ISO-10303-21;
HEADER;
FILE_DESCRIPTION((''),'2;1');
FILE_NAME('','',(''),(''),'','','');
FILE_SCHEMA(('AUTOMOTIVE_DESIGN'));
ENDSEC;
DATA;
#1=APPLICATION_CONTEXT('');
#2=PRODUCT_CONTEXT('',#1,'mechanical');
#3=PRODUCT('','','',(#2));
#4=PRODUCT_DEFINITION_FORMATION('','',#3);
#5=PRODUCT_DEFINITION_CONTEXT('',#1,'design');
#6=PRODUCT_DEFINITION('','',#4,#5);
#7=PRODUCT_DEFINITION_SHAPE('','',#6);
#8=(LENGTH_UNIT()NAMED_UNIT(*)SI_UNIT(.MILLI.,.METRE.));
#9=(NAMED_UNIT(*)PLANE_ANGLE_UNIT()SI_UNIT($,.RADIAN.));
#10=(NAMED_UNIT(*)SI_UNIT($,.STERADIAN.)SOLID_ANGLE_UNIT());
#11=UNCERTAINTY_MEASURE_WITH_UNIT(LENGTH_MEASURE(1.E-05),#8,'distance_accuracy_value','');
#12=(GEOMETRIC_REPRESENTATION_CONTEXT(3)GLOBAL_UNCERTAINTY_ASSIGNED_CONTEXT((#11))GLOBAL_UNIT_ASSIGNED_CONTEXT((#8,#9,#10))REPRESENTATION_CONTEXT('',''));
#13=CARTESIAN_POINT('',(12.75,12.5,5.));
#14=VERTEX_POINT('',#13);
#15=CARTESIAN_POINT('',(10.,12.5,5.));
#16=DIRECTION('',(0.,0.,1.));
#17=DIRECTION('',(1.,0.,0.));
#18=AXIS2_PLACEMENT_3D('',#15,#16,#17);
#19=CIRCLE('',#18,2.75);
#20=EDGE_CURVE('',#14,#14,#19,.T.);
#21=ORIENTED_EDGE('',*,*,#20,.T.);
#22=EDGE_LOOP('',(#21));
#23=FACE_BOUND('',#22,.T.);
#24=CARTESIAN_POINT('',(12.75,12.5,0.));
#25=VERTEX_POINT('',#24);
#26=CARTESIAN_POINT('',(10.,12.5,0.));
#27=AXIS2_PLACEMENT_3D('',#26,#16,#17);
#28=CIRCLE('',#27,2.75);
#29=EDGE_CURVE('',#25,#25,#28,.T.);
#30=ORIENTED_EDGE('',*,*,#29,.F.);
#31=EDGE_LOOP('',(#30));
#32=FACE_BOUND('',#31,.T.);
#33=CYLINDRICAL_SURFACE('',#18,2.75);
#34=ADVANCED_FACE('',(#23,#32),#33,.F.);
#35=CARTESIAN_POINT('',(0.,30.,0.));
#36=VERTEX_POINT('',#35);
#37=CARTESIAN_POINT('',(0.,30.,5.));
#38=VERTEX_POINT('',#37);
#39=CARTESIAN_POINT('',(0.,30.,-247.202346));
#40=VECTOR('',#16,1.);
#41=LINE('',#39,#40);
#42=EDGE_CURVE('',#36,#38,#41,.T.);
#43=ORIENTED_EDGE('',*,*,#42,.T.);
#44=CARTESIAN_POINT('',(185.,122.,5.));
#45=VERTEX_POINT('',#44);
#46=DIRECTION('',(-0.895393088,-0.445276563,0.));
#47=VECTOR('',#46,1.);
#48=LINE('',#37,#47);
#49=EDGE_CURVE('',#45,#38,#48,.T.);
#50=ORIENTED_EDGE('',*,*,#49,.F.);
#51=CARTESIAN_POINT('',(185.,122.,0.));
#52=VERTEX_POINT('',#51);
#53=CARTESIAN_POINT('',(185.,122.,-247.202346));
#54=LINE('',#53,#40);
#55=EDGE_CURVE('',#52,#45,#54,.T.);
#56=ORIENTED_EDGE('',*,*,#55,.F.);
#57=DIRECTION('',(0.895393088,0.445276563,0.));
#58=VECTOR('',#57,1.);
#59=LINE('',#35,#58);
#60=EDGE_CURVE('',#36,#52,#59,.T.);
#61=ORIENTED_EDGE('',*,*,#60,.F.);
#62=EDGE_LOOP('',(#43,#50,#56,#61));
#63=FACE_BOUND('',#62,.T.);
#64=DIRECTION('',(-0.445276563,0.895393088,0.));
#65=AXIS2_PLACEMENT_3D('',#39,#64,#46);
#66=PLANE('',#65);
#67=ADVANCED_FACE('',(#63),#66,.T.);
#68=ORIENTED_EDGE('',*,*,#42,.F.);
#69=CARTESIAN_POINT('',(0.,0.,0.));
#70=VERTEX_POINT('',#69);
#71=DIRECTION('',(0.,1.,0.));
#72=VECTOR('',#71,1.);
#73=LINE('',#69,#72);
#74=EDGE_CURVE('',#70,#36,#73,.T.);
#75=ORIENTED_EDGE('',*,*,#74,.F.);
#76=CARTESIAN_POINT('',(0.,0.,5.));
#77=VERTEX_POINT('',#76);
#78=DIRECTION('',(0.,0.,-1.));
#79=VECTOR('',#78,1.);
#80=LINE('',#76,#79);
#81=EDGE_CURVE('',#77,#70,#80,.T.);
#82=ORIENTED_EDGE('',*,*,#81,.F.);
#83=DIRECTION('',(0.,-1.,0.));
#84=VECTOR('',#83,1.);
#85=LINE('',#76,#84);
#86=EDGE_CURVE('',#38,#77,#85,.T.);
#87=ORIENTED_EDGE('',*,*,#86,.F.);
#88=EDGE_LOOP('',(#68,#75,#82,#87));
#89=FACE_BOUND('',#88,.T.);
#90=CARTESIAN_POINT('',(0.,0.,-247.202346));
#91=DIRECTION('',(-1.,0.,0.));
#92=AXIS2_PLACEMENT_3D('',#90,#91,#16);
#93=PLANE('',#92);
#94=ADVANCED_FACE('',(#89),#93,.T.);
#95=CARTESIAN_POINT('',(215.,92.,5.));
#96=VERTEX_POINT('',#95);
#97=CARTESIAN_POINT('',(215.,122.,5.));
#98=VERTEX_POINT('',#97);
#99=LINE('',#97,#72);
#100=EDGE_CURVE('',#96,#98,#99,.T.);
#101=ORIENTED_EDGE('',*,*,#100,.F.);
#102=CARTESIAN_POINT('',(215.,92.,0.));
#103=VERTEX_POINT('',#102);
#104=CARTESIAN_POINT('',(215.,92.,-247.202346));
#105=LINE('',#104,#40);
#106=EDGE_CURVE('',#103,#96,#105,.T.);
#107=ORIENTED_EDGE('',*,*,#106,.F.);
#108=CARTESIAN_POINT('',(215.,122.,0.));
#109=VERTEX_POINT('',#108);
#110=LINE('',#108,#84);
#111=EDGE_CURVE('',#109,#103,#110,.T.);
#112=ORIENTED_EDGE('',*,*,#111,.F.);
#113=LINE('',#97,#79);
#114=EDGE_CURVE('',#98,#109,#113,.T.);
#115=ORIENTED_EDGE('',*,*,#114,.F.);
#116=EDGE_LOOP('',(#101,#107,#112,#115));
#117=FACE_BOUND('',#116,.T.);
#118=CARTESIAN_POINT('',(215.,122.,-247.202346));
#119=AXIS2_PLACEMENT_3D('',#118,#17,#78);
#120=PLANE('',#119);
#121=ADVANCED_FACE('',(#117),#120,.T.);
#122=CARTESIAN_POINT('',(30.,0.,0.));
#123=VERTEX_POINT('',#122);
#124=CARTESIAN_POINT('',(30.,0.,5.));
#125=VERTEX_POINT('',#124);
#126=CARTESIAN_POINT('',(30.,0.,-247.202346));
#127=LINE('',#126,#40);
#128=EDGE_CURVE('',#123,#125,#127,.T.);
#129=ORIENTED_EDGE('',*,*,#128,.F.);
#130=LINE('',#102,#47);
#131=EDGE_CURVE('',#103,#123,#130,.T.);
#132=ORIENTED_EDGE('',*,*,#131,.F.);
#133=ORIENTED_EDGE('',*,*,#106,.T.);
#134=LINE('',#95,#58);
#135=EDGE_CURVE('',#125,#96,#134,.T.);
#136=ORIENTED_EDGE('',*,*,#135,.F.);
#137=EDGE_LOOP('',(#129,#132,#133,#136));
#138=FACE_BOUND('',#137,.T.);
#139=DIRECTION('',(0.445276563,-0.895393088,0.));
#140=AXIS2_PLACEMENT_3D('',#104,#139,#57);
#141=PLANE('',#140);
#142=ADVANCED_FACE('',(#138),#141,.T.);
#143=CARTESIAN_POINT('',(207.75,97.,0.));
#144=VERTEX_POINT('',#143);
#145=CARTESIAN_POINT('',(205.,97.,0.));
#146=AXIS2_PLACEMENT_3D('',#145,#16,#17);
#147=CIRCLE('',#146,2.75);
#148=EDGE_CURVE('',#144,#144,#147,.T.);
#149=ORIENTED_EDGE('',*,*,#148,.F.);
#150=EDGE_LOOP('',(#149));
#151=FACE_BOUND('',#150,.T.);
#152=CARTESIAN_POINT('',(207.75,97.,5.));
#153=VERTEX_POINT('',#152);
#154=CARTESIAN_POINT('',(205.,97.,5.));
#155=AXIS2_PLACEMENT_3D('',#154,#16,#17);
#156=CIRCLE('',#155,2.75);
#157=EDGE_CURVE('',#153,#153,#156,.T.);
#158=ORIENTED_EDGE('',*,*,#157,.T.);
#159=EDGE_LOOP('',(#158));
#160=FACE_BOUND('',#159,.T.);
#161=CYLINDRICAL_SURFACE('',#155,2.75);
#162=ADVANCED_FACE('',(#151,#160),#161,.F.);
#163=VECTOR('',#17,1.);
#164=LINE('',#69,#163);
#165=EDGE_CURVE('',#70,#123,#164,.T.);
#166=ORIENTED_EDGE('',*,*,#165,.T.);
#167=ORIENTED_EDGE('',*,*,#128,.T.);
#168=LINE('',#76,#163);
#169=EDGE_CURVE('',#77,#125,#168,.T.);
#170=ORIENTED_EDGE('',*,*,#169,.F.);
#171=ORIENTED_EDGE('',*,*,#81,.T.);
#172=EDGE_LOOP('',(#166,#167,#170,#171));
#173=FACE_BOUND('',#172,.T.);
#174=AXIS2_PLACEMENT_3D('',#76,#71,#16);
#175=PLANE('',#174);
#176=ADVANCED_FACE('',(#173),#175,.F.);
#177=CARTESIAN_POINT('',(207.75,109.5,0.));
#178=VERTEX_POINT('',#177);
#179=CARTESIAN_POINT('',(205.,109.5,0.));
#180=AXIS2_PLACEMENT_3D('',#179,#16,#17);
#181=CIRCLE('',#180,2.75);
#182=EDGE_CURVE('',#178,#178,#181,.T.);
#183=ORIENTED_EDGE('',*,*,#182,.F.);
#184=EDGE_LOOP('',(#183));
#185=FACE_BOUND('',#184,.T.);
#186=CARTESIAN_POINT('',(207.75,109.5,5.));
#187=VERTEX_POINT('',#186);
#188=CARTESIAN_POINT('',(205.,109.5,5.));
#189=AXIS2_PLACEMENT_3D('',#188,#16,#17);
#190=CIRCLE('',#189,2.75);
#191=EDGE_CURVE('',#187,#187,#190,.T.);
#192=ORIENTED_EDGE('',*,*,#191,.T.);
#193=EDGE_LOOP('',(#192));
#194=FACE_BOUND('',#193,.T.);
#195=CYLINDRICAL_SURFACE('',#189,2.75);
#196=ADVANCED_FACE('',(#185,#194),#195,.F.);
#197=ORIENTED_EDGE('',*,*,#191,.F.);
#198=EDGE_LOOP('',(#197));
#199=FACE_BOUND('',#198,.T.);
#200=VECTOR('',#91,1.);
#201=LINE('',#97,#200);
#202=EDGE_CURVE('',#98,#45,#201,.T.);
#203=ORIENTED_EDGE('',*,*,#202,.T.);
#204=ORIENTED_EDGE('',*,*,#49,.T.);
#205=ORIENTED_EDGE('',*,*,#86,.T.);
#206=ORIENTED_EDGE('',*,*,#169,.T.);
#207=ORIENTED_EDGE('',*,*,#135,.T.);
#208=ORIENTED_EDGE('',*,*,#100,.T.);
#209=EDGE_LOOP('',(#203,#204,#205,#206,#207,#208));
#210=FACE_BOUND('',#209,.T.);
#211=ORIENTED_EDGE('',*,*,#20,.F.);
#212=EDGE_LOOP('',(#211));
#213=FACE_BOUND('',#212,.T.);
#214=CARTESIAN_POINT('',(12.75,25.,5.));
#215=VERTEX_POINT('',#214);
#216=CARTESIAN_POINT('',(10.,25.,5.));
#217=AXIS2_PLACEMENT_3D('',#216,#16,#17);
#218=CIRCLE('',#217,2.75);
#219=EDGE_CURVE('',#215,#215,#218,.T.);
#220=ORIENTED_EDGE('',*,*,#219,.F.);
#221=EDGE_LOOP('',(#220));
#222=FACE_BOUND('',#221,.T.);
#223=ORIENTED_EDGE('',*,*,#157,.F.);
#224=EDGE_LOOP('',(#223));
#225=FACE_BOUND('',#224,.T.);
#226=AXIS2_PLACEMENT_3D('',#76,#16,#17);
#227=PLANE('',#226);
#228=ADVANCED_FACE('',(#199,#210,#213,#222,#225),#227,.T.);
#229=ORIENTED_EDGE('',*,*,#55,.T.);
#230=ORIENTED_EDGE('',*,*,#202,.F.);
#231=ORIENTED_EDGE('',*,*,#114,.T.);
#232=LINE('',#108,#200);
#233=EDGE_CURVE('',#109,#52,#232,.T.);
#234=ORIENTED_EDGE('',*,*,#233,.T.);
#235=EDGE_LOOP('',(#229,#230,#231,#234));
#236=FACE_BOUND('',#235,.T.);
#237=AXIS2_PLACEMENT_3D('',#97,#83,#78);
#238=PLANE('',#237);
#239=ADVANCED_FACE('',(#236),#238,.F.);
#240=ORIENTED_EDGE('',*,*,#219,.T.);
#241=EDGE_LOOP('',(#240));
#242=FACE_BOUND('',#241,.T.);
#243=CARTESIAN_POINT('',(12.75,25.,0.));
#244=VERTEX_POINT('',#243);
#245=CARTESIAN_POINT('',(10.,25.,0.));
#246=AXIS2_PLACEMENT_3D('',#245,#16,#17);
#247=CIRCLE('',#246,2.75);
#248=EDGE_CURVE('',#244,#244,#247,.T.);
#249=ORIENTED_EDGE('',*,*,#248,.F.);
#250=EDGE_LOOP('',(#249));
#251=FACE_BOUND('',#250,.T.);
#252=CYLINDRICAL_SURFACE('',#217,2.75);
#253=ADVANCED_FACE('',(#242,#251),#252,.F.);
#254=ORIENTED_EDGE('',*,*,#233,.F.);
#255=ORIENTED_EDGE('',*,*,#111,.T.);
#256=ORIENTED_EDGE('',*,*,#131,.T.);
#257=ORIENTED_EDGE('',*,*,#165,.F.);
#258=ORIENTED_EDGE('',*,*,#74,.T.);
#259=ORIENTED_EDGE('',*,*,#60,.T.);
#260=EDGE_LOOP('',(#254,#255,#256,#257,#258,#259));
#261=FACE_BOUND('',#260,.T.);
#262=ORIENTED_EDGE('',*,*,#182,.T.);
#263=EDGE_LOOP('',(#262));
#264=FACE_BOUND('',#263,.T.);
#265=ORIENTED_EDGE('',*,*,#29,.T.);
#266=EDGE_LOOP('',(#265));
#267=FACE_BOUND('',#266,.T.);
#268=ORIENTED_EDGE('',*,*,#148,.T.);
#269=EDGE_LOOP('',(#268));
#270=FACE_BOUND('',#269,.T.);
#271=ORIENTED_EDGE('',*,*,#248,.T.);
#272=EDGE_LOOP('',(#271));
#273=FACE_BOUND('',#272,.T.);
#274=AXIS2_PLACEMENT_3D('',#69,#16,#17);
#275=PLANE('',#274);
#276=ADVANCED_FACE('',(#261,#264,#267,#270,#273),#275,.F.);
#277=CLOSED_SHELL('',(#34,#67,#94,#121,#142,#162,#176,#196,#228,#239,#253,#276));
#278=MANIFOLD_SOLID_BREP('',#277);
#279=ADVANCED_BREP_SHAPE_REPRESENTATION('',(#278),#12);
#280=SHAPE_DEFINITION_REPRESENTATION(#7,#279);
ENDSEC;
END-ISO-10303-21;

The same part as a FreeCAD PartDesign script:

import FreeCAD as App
import Part
import Sketcher

V = App.Vector
Q = App.Units.Quantity

doc = App.newDocument("Part")
body = doc.addObject("PartDesign::Body", "Body")

# Sketch on XY plane
sketch1 = body.newObject("Sketcher::SketchObject", "Sketch")
sketch1.AttachmentSupport = (doc.getObject("XY_Plane"), [""])
sketch1.MapMode = "FlatFace"
sketch1.addGeometry([
    Part.LineSegment(V(0, 0, 0), V(20, 0, 0)),
    Part.LineSegment(V(20, 0, 0), V(215, 122, 0)),
    Part.LineSegment(V(215, 122, 0), V(195, 122, 0)),
    Part.LineSegment(V(195, 122, 0), V(0, 0, 0)),
], False)
sketch1.addConstraint([
    Sketcher.Constraint("Coincident", 0, 2, 1, 1),
    Sketcher.Constraint("Coincident", 1, 2, 2, 1),
    Sketcher.Constraint("Coincident", 2, 2, 3, 1),
    Sketcher.Constraint("Coincident", 3, 2, 0, 1),
    Sketcher.Constraint("Horizontal", 0),
    Sketcher.Constraint("Horizontal", 2),
    Sketcher.Constraint("Coincident", 3, 2, -1, 1),
    Sketcher.Constraint("Parallel", 1, 3),
    Sketcher.Constraint("DistanceX", 0, 1, 0, 2, Q("20 mm")),
    Sketcher.Constraint("DistanceX", -1, 1, 1, 2, Q("215 mm")),
    Sketcher.Constraint("DistanceY", -1, 1, 1, 2, Q("122 mm")),
])
pad1 = body.newObject("PartDesign::Pad", "Pad")
pad1.Profile = sketch1
pad1.Length = 5

# Sketch on XY plane
sketch2 = body.newObject("Sketcher::SketchObject", "Sketch001")
sketch2.AttachmentSupport = (doc.getObject("XY_Plane"), [""])
sketch2.MapMode = "FlatFace"
sketch2.AttachmentOffset = App.Placement(V(0, 0, 5), App.Rotation())
sketch2.addGeometry([
    Part.LineSegment(V(0, 30, 0), V(0, 0, 0)),  # 0
    Part.LineSegment(V(0, 0, 0), V(30, 0, 0)),  # 1
    Part.LineSegment(V(30, 0, 0), V(215, 92, 0)),  # 2
    Part.LineSegment(V(215, 92, 0), V(215, 122, 0)),  # 3
    Part.LineSegment(V(215, 122, 0), V(185, 122, 0)),  # 4
    Part.LineSegment(V(185, 122, 0), V(0, 30, 0)),  # 5
], False)
sketch2.addConstraint([
    Sketcher.Constraint("Coincident", 0, 2, 1, 1),
    Sketcher.Constraint("Coincident", 1, 2, 2, 1),
    Sketcher.Constraint("Coincident", 2, 2, 3, 1),
    Sketcher.Constraint("Coincident", 3, 2, 4, 1),
    Sketcher.Constraint("Coincident", 4, 2, 5, 1),
    Sketcher.Constraint("Coincident", 5, 2, 0, 1),
    Sketcher.Constraint("Vertical", 0),
    Sketcher.Constraint("Horizontal", 1),
    Sketcher.Constraint("Vertical", 3),
    Sketcher.Constraint("Horizontal", 4),
    Sketcher.Constraint("Coincident", 0, 2, -1, 1),
    Sketcher.Constraint("Parallel", 2, 5),
    Sketcher.Constraint("Equal", 1, 4),
    Sketcher.Constraint("Equal", 4, 0),
    Sketcher.Constraint("DistanceX", 1, 1, 1, 2, Q("30 mm")),
    Sketcher.Constraint("DistanceX", -1, 1, 2, 2, Q("215 mm")),
    Sketcher.Constraint("DistanceY", -1, 1, 2, 2, Q("92 mm")),
])
pad2 = body.newObject("PartDesign::Pad", "Pad001")
pad2.Profile = sketch2
pad2.Length = 5
pad2.Reversed = True

# Sketch on XY plane
sketch3 = body.newObject("Sketcher::SketchObject", "Sketch002")
sketch3.AttachmentSupport = (doc.getObject("XY_Plane"), [""])
sketch3.MapMode = "FlatFace"
sketch3.AttachmentOffset = App.Placement(V(0, 0, 5), App.Rotation())
sketch3.addGeometry([
    Part.Circle(V(205, 97, 0), V(0, 0, 1), 2.8),
    Part.Circle(V(10, 25, 0), V(0, 0, 1), 2.8),
    Part.Circle(V(10, 12.5, 0), V(0, 0, 1), 2.8),
    Part.Circle(V(205, 109.5, 0), V(0, 0, 1), 2.8),
], False)
sketch3.addConstraint([
    Sketcher.Constraint("Equal", 0, 1),
    Sketcher.Constraint("Equal", 1, 2),
    Sketcher.Constraint("Equal", 2, 3),
    Sketcher.Constraint("Vertical", 1, 3, 2, 3),
    Sketcher.Constraint("Vertical", 0, 3, 3, 3),
    Sketcher.Constraint("Diameter", 0, Q("5.5 mm")),
    Sketcher.Constraint("DistanceX", -1, 1, 0, 3, Q("205 mm")),
    Sketcher.Constraint("DistanceY", -1, 1, 0, 3, Q("97 mm")),
    Sketcher.Constraint("DistanceX", -1, 1, 1, 3, Q("10 mm")),
    Sketcher.Constraint("DistanceY", -1, 1, 1, 3, Q("25 mm")),
    Sketcher.Constraint("DistanceY", 2, 3, 3, 3, Q("97 mm")),
    Sketcher.Constraint("DistanceY", -1, 1, 2, 3, Q("12.5 mm")),
])
doc.recompute()
hole = body.newObject("PartDesign::Hole", "Hole")
hole.Profile = sketch3
hole.ThreadType = "None"
hole.Diameter = 5.5
hole.DepthType = "ThroughAll"

doc.recompute()
